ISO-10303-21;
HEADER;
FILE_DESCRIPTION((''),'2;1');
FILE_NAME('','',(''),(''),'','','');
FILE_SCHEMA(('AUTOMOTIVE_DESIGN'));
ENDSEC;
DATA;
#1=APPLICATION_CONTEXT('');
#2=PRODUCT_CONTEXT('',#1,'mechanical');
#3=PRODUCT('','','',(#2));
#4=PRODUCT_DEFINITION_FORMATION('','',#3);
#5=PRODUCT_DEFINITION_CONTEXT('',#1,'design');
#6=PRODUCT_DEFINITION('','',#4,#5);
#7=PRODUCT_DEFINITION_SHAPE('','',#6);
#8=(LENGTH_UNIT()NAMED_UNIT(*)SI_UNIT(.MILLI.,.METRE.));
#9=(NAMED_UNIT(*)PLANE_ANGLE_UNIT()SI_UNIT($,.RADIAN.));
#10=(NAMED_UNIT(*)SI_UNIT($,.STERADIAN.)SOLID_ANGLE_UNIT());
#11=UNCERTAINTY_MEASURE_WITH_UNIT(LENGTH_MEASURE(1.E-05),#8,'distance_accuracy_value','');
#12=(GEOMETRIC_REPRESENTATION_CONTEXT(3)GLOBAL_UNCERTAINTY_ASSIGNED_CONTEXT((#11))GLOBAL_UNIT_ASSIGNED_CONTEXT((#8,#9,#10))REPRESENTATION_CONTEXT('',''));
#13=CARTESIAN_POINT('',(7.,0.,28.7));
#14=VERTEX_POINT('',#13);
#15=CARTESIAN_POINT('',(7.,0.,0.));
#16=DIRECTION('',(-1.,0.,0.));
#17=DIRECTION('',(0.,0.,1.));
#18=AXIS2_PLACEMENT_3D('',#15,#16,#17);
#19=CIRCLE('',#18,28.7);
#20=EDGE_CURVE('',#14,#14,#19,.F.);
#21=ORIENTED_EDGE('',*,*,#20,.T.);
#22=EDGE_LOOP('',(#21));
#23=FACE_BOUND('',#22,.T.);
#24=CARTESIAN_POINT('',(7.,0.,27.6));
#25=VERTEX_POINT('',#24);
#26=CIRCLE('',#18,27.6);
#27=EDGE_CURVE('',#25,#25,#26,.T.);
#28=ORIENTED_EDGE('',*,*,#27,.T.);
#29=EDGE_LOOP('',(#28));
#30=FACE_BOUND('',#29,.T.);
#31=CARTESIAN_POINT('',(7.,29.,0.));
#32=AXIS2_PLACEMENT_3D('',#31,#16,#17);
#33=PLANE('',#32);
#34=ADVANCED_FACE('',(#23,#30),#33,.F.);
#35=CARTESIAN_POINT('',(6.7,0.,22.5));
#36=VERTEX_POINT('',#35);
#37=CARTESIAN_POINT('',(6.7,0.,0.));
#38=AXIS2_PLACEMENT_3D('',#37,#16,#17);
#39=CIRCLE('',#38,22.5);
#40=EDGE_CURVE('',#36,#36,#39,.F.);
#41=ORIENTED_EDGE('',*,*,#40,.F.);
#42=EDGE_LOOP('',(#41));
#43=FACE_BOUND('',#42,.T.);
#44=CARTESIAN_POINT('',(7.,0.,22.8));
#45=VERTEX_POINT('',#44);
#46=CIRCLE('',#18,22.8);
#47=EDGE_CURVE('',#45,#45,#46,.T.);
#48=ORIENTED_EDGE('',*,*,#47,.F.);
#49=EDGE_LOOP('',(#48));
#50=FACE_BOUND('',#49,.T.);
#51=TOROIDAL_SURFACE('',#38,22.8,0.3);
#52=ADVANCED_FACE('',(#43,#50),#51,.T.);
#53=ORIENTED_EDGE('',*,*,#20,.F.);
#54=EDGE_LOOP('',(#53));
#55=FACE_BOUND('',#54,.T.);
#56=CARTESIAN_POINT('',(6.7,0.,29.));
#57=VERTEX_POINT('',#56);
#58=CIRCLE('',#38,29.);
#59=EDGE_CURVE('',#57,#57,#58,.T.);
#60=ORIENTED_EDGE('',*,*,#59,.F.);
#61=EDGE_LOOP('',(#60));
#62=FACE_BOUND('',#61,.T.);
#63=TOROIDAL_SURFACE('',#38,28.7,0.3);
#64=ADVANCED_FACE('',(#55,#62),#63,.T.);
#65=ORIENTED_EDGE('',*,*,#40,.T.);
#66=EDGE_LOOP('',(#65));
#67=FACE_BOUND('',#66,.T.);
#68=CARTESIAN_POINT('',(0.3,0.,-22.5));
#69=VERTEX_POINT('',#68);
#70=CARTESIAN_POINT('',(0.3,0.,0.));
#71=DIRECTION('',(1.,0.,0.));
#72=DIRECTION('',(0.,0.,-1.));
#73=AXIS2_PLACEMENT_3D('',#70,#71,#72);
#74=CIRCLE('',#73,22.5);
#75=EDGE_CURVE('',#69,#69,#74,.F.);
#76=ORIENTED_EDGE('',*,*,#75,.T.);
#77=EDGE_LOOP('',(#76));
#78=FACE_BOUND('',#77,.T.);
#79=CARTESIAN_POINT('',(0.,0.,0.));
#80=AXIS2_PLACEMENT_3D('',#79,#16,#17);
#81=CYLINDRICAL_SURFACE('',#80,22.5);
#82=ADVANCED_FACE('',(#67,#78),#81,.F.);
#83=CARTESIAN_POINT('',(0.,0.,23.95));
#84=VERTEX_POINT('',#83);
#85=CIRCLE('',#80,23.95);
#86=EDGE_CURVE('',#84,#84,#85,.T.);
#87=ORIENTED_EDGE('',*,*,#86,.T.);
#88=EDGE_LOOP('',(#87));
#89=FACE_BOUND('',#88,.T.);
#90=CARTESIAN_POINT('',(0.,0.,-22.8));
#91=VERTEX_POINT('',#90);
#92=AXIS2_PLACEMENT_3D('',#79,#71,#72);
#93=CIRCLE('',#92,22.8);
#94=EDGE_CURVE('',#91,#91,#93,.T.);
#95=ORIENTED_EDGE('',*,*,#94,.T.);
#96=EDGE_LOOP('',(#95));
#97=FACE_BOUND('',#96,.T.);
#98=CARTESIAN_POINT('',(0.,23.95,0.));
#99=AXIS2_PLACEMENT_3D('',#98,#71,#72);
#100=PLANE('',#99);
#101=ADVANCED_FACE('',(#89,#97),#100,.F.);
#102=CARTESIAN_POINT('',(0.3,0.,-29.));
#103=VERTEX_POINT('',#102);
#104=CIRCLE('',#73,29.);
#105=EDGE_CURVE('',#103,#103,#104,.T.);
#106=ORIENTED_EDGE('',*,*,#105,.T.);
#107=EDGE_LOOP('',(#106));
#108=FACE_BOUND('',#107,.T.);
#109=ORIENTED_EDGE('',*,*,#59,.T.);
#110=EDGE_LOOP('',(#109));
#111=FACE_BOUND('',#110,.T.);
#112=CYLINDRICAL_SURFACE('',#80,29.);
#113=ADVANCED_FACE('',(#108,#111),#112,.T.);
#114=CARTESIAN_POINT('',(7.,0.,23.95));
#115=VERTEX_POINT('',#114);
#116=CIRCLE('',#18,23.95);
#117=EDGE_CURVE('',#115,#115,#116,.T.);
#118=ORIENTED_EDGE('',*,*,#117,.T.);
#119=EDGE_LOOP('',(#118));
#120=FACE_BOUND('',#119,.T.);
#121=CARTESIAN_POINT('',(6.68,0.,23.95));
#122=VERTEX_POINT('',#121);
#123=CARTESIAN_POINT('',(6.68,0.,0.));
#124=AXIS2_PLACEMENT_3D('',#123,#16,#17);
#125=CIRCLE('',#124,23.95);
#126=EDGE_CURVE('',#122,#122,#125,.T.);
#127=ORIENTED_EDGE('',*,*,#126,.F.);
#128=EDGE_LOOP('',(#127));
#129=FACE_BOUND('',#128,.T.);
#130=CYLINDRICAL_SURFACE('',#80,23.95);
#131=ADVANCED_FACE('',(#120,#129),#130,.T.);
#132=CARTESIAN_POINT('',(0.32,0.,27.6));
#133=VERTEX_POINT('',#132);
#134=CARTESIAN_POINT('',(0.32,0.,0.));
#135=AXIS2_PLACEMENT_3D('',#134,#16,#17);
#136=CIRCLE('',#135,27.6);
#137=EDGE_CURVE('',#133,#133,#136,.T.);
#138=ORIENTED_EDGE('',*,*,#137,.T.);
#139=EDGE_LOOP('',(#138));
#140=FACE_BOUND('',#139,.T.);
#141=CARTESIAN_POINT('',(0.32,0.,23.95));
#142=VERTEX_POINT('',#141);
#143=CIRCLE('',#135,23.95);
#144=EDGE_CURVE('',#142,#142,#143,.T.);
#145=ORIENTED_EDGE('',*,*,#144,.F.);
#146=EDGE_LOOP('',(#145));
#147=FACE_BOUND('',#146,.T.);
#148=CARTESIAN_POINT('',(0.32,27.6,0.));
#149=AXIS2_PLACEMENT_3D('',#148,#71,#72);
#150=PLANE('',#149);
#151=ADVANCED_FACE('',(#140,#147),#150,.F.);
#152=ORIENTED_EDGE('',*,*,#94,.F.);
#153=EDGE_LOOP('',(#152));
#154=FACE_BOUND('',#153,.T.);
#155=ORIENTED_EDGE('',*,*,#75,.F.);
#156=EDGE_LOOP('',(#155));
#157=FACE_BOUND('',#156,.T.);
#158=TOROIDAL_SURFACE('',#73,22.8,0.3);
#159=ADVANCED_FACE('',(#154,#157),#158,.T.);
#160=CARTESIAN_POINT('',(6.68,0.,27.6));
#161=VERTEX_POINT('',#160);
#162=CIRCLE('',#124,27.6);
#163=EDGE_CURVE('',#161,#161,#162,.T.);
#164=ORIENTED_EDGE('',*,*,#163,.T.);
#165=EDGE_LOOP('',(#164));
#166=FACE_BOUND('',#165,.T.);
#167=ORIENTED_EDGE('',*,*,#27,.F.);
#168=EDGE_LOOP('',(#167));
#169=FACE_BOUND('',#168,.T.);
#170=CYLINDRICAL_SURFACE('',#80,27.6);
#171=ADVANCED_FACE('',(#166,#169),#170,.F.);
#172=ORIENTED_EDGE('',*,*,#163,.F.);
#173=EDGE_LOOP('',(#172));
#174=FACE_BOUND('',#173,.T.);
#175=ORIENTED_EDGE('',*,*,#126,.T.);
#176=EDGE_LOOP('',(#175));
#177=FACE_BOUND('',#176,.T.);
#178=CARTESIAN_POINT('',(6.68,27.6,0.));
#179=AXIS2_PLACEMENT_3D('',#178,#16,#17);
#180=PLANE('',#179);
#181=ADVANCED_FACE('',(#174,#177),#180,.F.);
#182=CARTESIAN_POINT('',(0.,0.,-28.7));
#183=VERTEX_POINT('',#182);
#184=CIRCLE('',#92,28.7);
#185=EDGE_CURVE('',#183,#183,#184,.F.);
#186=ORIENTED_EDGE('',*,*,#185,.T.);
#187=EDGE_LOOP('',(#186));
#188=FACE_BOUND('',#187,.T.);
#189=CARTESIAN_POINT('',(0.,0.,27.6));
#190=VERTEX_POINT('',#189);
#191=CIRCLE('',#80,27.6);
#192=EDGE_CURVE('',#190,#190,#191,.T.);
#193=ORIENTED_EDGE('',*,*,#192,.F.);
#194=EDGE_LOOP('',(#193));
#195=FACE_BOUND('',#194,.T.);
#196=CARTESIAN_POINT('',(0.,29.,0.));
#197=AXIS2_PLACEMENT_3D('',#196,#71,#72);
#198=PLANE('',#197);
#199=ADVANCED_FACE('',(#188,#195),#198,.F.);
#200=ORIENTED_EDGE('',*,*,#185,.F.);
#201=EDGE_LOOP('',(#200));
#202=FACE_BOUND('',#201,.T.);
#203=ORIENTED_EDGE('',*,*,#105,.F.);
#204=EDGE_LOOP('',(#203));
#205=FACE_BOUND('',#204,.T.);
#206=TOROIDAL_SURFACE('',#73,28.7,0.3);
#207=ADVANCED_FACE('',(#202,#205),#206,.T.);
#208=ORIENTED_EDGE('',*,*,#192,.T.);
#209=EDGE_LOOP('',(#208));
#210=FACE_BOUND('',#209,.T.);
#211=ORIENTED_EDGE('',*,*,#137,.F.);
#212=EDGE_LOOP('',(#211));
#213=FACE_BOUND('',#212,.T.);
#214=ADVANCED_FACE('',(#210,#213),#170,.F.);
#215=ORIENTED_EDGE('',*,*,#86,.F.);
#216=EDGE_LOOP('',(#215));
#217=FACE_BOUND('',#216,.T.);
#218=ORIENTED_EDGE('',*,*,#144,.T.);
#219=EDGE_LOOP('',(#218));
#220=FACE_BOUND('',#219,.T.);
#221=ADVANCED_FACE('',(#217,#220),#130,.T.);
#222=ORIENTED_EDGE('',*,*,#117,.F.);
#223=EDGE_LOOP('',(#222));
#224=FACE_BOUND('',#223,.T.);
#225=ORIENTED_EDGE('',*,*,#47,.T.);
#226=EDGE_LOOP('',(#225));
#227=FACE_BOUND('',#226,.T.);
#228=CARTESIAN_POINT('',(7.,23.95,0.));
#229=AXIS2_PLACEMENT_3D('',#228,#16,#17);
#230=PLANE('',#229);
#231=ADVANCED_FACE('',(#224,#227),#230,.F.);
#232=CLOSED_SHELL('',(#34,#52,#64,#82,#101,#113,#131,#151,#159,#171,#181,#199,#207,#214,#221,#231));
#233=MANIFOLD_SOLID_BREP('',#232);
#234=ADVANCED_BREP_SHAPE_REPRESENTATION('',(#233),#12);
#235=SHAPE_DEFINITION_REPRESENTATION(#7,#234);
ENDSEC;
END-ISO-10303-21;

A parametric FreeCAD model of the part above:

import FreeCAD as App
import Part
import Sketcher
from FreeCAD import Vector


def edges_at(feature, points):
    """Names of the edges that pass closest to the given points."""
    edges = feature.Shape.Edges
    near = lambda p: min(range(len(edges)), key=lambda i: edges[i].distToShape(Part.Vertex(*p))[0])
    return sorted({f"Edge{near(p) + 1}" for p in points})


def add_polygon(sketch, points):
    """Adds a closed chain of lines whose ends are joined by coincident constraints."""
    first, n = sketch.GeometryCount, len(points)
    for a, b in zip(points, points[1:] + points[:1]):
        sketch.addGeometry(Part.LineSegment(App.Vector(*a, 0), App.Vector(*b, 0)), False)
    for i in range(n):
        sketch.addConstraint(Sketcher.Constraint("Coincident", first + i, 2, first + (i + 1) % n, 1))

doc = App.newDocument("Part")
body = doc.addObject("PartDesign::Body", "Body")

# Sketch on XY plane
sketch1 = body.newObject("Sketcher::SketchObject", "Sketch")
sketch1.AttachmentSupport = (doc.getObject("XY_Plane"), [""])
sketch1.MapMode = "FlatFace"
add_polygon(sketch1, [(0, 22.5), (7, 22.5), (7, 23.95), (6.68, 23.95), (6.68, 27.6), (7, 27.6), (7, 29), (0, 29), (0, 27.6), (0.32, 27.6), (0.32, 23.95), (0, 23.95)])  # lines 0-11
sketch1.addConstraint([
    Sketcher.Constraint("Horizontal", 0),
    Sketcher.Constraint("Vertical", 1),
    Sketcher.Constraint("Horizontal", 2),
    Sketcher.Constraint("Vertical", 3),
    Sketcher.Constraint("Horizontal", 4),
    Sketcher.Constraint("Vertical", 5),
    Sketcher.Constraint("Horizontal", 6),
    Sketcher.Constraint("Vertical", 7),
    Sketcher.Constraint("Horizontal", 8),
    Sketcher.Constraint("Vertical", 9),
    Sketcher.Constraint("Horizontal", 10),
    Sketcher.Constraint("Vertical", 11),
    Sketcher.Constraint("PointOnObject", 6, 2, -2),
    Sketcher.Constraint("PointOnObject", 10, 2, -2),
    Sketcher.Constraint("Horizontal", 4, 2, 7, 2),
    Sketcher.Constraint("Horizontal", 2, 2, 9, 2),
    Sketcher.Constraint("Vertical", 1, 2, 4, 2),
    Sketcher.Constraint("Equal", 4, 8),
    Sketcher.Constraint("DistanceX", 0, 1, 0, 2, 7.0),
    Sketcher.Constraint("DistanceY", 5, 1, 5, 2, 1.4),
    Sketcher.Constraint("DistanceY", -1, 1, 5, 2, 29.0),
    Sketcher.Constraint("DistanceX", 2, 2, 2, 1, 0.32),
    Sketcher.Constraint("DistanceY", 1, 1, 1, 2, 1.45),
    Sketcher.Constraint("DistanceY", 3, 1, 3, 2, 3.65),
])
revolution = body.newObject("PartDesign::Revolution", "Revolution")
revolution.Profile = sketch1
revolution.ReferenceAxis = (sketch1, ["H_Axis"])
revolution.Angle = 360
doc.recompute()

fillet = body.newObject("PartDesign::Fillet", "Fillet")
fillet.Base = (revolution, edges_at(revolution, [(0, 0, -29), (7, 0, -29)]))
fillet.Radius = 0.3
doc.recompute()

fillet2 = body.newObject("PartDesign::Fillet", "Fillet001")
fillet2.Base = (fillet, edges_at(fillet, [(7, 0, -22.5), (0, 0, -22.5)]))
fillet2.Radius = 0.3

doc.recompute()
